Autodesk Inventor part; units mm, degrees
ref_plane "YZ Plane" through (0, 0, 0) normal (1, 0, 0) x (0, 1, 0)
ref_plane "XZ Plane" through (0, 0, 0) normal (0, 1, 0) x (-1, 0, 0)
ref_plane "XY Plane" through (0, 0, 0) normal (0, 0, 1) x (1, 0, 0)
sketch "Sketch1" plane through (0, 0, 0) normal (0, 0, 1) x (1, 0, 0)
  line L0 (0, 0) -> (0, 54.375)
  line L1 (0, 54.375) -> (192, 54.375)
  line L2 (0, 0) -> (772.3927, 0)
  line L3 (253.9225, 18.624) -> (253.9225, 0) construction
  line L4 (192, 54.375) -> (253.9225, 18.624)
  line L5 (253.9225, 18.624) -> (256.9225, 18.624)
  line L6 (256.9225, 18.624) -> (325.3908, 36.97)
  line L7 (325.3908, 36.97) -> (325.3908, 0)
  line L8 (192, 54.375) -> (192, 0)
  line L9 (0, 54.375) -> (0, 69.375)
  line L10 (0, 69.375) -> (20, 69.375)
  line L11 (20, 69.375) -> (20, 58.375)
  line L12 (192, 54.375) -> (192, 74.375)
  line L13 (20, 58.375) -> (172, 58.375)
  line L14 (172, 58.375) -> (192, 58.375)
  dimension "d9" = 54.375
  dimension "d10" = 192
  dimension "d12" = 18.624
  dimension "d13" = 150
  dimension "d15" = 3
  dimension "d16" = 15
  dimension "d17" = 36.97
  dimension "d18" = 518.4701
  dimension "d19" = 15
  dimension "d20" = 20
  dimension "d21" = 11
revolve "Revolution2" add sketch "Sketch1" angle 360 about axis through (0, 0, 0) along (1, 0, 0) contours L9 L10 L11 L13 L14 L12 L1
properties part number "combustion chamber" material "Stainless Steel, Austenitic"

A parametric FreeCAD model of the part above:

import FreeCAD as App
import Part
import Sketcher
Q = App.Units.Quantity

doc = App.newDocument("Part")
body = doc.addObject("PartDesign::Body", "Body")

sketch1 = body.newObject("Sketcher::SketchObject", "Sketch")
sketch1.AttachmentSupport = (doc.getObject("XY_Plane"), [""])
sketch1.MapMode = "FlatFace"
sketch1.addGeometry([
    Part.LineSegment(App.Vector(0, 69.4, 0), App.Vector(0, 54.4, 0)),
    Part.LineSegment(App.Vector(0, 54.4, 0), App.Vector(192, 54.4, 0)),
    Part.LineSegment(App.Vector(192, 54.4, 0), App.Vector(192, 58.4, 0)),
    Part.LineSegment(App.Vector(192, 58.4, 0), App.Vector(20, 58.4, 0)),
    Part.LineSegment(App.Vector(20, 58.4, 0), App.Vector(20, 69.4, 0)),
    Part.LineSegment(App.Vector(20, 69.4, 0), App.Vector(0, 69.4, 0)),
], False)
sketch1.addConstraint([
    Sketcher.Constraint("Coincident", 0, 2, 1, 1),
    Sketcher.Constraint("Coincident", 1, 2, 2, 1),
    Sketcher.Constraint("Coincident", 2, 2, 3, 1),
    Sketcher.Constraint("Coincident", 3, 2, 4, 1),
    Sketcher.Constraint("Coincident", 4, 2, 5, 1),
    Sketcher.Constraint("Coincident", 5, 2, 0, 1),
    Sketcher.Constraint("Vertical", 0),
    Sketcher.Constraint("Horizontal", 1),
    Sketcher.Constraint("Vertical", 2),
    Sketcher.Constraint("Horizontal", 3),
    Sketcher.Constraint("Vertical", 4),
    Sketcher.Constraint("Horizontal", 5),
    Sketcher.Constraint("PointOnObject", 0, 2, -2),
    Sketcher.Constraint("DistanceX", 1, 1, 1, 2, Q("192 mm")),
    Sketcher.Constraint("DistanceX", 5, 2, 5, 1, Q("20 mm")),
    Sketcher.Constraint("DistanceY", 0, 2, 0, 1, Q("15 mm")),
    Sketcher.Constraint("DistanceY", 4, 1, 4, 2, Q("11 mm")),
    Sketcher.Constraint("DistanceY", -1, 1, 0, 2, Q("54.375 mm")),
])
revolution = body.newObject("PartDesign::Revolution", "Revolution")
revolution.Profile = sketch1
revolution.ReferenceAxis = (sketch1, ["H_Axis"])
revolution.Angle = 360

doc.recompute()
